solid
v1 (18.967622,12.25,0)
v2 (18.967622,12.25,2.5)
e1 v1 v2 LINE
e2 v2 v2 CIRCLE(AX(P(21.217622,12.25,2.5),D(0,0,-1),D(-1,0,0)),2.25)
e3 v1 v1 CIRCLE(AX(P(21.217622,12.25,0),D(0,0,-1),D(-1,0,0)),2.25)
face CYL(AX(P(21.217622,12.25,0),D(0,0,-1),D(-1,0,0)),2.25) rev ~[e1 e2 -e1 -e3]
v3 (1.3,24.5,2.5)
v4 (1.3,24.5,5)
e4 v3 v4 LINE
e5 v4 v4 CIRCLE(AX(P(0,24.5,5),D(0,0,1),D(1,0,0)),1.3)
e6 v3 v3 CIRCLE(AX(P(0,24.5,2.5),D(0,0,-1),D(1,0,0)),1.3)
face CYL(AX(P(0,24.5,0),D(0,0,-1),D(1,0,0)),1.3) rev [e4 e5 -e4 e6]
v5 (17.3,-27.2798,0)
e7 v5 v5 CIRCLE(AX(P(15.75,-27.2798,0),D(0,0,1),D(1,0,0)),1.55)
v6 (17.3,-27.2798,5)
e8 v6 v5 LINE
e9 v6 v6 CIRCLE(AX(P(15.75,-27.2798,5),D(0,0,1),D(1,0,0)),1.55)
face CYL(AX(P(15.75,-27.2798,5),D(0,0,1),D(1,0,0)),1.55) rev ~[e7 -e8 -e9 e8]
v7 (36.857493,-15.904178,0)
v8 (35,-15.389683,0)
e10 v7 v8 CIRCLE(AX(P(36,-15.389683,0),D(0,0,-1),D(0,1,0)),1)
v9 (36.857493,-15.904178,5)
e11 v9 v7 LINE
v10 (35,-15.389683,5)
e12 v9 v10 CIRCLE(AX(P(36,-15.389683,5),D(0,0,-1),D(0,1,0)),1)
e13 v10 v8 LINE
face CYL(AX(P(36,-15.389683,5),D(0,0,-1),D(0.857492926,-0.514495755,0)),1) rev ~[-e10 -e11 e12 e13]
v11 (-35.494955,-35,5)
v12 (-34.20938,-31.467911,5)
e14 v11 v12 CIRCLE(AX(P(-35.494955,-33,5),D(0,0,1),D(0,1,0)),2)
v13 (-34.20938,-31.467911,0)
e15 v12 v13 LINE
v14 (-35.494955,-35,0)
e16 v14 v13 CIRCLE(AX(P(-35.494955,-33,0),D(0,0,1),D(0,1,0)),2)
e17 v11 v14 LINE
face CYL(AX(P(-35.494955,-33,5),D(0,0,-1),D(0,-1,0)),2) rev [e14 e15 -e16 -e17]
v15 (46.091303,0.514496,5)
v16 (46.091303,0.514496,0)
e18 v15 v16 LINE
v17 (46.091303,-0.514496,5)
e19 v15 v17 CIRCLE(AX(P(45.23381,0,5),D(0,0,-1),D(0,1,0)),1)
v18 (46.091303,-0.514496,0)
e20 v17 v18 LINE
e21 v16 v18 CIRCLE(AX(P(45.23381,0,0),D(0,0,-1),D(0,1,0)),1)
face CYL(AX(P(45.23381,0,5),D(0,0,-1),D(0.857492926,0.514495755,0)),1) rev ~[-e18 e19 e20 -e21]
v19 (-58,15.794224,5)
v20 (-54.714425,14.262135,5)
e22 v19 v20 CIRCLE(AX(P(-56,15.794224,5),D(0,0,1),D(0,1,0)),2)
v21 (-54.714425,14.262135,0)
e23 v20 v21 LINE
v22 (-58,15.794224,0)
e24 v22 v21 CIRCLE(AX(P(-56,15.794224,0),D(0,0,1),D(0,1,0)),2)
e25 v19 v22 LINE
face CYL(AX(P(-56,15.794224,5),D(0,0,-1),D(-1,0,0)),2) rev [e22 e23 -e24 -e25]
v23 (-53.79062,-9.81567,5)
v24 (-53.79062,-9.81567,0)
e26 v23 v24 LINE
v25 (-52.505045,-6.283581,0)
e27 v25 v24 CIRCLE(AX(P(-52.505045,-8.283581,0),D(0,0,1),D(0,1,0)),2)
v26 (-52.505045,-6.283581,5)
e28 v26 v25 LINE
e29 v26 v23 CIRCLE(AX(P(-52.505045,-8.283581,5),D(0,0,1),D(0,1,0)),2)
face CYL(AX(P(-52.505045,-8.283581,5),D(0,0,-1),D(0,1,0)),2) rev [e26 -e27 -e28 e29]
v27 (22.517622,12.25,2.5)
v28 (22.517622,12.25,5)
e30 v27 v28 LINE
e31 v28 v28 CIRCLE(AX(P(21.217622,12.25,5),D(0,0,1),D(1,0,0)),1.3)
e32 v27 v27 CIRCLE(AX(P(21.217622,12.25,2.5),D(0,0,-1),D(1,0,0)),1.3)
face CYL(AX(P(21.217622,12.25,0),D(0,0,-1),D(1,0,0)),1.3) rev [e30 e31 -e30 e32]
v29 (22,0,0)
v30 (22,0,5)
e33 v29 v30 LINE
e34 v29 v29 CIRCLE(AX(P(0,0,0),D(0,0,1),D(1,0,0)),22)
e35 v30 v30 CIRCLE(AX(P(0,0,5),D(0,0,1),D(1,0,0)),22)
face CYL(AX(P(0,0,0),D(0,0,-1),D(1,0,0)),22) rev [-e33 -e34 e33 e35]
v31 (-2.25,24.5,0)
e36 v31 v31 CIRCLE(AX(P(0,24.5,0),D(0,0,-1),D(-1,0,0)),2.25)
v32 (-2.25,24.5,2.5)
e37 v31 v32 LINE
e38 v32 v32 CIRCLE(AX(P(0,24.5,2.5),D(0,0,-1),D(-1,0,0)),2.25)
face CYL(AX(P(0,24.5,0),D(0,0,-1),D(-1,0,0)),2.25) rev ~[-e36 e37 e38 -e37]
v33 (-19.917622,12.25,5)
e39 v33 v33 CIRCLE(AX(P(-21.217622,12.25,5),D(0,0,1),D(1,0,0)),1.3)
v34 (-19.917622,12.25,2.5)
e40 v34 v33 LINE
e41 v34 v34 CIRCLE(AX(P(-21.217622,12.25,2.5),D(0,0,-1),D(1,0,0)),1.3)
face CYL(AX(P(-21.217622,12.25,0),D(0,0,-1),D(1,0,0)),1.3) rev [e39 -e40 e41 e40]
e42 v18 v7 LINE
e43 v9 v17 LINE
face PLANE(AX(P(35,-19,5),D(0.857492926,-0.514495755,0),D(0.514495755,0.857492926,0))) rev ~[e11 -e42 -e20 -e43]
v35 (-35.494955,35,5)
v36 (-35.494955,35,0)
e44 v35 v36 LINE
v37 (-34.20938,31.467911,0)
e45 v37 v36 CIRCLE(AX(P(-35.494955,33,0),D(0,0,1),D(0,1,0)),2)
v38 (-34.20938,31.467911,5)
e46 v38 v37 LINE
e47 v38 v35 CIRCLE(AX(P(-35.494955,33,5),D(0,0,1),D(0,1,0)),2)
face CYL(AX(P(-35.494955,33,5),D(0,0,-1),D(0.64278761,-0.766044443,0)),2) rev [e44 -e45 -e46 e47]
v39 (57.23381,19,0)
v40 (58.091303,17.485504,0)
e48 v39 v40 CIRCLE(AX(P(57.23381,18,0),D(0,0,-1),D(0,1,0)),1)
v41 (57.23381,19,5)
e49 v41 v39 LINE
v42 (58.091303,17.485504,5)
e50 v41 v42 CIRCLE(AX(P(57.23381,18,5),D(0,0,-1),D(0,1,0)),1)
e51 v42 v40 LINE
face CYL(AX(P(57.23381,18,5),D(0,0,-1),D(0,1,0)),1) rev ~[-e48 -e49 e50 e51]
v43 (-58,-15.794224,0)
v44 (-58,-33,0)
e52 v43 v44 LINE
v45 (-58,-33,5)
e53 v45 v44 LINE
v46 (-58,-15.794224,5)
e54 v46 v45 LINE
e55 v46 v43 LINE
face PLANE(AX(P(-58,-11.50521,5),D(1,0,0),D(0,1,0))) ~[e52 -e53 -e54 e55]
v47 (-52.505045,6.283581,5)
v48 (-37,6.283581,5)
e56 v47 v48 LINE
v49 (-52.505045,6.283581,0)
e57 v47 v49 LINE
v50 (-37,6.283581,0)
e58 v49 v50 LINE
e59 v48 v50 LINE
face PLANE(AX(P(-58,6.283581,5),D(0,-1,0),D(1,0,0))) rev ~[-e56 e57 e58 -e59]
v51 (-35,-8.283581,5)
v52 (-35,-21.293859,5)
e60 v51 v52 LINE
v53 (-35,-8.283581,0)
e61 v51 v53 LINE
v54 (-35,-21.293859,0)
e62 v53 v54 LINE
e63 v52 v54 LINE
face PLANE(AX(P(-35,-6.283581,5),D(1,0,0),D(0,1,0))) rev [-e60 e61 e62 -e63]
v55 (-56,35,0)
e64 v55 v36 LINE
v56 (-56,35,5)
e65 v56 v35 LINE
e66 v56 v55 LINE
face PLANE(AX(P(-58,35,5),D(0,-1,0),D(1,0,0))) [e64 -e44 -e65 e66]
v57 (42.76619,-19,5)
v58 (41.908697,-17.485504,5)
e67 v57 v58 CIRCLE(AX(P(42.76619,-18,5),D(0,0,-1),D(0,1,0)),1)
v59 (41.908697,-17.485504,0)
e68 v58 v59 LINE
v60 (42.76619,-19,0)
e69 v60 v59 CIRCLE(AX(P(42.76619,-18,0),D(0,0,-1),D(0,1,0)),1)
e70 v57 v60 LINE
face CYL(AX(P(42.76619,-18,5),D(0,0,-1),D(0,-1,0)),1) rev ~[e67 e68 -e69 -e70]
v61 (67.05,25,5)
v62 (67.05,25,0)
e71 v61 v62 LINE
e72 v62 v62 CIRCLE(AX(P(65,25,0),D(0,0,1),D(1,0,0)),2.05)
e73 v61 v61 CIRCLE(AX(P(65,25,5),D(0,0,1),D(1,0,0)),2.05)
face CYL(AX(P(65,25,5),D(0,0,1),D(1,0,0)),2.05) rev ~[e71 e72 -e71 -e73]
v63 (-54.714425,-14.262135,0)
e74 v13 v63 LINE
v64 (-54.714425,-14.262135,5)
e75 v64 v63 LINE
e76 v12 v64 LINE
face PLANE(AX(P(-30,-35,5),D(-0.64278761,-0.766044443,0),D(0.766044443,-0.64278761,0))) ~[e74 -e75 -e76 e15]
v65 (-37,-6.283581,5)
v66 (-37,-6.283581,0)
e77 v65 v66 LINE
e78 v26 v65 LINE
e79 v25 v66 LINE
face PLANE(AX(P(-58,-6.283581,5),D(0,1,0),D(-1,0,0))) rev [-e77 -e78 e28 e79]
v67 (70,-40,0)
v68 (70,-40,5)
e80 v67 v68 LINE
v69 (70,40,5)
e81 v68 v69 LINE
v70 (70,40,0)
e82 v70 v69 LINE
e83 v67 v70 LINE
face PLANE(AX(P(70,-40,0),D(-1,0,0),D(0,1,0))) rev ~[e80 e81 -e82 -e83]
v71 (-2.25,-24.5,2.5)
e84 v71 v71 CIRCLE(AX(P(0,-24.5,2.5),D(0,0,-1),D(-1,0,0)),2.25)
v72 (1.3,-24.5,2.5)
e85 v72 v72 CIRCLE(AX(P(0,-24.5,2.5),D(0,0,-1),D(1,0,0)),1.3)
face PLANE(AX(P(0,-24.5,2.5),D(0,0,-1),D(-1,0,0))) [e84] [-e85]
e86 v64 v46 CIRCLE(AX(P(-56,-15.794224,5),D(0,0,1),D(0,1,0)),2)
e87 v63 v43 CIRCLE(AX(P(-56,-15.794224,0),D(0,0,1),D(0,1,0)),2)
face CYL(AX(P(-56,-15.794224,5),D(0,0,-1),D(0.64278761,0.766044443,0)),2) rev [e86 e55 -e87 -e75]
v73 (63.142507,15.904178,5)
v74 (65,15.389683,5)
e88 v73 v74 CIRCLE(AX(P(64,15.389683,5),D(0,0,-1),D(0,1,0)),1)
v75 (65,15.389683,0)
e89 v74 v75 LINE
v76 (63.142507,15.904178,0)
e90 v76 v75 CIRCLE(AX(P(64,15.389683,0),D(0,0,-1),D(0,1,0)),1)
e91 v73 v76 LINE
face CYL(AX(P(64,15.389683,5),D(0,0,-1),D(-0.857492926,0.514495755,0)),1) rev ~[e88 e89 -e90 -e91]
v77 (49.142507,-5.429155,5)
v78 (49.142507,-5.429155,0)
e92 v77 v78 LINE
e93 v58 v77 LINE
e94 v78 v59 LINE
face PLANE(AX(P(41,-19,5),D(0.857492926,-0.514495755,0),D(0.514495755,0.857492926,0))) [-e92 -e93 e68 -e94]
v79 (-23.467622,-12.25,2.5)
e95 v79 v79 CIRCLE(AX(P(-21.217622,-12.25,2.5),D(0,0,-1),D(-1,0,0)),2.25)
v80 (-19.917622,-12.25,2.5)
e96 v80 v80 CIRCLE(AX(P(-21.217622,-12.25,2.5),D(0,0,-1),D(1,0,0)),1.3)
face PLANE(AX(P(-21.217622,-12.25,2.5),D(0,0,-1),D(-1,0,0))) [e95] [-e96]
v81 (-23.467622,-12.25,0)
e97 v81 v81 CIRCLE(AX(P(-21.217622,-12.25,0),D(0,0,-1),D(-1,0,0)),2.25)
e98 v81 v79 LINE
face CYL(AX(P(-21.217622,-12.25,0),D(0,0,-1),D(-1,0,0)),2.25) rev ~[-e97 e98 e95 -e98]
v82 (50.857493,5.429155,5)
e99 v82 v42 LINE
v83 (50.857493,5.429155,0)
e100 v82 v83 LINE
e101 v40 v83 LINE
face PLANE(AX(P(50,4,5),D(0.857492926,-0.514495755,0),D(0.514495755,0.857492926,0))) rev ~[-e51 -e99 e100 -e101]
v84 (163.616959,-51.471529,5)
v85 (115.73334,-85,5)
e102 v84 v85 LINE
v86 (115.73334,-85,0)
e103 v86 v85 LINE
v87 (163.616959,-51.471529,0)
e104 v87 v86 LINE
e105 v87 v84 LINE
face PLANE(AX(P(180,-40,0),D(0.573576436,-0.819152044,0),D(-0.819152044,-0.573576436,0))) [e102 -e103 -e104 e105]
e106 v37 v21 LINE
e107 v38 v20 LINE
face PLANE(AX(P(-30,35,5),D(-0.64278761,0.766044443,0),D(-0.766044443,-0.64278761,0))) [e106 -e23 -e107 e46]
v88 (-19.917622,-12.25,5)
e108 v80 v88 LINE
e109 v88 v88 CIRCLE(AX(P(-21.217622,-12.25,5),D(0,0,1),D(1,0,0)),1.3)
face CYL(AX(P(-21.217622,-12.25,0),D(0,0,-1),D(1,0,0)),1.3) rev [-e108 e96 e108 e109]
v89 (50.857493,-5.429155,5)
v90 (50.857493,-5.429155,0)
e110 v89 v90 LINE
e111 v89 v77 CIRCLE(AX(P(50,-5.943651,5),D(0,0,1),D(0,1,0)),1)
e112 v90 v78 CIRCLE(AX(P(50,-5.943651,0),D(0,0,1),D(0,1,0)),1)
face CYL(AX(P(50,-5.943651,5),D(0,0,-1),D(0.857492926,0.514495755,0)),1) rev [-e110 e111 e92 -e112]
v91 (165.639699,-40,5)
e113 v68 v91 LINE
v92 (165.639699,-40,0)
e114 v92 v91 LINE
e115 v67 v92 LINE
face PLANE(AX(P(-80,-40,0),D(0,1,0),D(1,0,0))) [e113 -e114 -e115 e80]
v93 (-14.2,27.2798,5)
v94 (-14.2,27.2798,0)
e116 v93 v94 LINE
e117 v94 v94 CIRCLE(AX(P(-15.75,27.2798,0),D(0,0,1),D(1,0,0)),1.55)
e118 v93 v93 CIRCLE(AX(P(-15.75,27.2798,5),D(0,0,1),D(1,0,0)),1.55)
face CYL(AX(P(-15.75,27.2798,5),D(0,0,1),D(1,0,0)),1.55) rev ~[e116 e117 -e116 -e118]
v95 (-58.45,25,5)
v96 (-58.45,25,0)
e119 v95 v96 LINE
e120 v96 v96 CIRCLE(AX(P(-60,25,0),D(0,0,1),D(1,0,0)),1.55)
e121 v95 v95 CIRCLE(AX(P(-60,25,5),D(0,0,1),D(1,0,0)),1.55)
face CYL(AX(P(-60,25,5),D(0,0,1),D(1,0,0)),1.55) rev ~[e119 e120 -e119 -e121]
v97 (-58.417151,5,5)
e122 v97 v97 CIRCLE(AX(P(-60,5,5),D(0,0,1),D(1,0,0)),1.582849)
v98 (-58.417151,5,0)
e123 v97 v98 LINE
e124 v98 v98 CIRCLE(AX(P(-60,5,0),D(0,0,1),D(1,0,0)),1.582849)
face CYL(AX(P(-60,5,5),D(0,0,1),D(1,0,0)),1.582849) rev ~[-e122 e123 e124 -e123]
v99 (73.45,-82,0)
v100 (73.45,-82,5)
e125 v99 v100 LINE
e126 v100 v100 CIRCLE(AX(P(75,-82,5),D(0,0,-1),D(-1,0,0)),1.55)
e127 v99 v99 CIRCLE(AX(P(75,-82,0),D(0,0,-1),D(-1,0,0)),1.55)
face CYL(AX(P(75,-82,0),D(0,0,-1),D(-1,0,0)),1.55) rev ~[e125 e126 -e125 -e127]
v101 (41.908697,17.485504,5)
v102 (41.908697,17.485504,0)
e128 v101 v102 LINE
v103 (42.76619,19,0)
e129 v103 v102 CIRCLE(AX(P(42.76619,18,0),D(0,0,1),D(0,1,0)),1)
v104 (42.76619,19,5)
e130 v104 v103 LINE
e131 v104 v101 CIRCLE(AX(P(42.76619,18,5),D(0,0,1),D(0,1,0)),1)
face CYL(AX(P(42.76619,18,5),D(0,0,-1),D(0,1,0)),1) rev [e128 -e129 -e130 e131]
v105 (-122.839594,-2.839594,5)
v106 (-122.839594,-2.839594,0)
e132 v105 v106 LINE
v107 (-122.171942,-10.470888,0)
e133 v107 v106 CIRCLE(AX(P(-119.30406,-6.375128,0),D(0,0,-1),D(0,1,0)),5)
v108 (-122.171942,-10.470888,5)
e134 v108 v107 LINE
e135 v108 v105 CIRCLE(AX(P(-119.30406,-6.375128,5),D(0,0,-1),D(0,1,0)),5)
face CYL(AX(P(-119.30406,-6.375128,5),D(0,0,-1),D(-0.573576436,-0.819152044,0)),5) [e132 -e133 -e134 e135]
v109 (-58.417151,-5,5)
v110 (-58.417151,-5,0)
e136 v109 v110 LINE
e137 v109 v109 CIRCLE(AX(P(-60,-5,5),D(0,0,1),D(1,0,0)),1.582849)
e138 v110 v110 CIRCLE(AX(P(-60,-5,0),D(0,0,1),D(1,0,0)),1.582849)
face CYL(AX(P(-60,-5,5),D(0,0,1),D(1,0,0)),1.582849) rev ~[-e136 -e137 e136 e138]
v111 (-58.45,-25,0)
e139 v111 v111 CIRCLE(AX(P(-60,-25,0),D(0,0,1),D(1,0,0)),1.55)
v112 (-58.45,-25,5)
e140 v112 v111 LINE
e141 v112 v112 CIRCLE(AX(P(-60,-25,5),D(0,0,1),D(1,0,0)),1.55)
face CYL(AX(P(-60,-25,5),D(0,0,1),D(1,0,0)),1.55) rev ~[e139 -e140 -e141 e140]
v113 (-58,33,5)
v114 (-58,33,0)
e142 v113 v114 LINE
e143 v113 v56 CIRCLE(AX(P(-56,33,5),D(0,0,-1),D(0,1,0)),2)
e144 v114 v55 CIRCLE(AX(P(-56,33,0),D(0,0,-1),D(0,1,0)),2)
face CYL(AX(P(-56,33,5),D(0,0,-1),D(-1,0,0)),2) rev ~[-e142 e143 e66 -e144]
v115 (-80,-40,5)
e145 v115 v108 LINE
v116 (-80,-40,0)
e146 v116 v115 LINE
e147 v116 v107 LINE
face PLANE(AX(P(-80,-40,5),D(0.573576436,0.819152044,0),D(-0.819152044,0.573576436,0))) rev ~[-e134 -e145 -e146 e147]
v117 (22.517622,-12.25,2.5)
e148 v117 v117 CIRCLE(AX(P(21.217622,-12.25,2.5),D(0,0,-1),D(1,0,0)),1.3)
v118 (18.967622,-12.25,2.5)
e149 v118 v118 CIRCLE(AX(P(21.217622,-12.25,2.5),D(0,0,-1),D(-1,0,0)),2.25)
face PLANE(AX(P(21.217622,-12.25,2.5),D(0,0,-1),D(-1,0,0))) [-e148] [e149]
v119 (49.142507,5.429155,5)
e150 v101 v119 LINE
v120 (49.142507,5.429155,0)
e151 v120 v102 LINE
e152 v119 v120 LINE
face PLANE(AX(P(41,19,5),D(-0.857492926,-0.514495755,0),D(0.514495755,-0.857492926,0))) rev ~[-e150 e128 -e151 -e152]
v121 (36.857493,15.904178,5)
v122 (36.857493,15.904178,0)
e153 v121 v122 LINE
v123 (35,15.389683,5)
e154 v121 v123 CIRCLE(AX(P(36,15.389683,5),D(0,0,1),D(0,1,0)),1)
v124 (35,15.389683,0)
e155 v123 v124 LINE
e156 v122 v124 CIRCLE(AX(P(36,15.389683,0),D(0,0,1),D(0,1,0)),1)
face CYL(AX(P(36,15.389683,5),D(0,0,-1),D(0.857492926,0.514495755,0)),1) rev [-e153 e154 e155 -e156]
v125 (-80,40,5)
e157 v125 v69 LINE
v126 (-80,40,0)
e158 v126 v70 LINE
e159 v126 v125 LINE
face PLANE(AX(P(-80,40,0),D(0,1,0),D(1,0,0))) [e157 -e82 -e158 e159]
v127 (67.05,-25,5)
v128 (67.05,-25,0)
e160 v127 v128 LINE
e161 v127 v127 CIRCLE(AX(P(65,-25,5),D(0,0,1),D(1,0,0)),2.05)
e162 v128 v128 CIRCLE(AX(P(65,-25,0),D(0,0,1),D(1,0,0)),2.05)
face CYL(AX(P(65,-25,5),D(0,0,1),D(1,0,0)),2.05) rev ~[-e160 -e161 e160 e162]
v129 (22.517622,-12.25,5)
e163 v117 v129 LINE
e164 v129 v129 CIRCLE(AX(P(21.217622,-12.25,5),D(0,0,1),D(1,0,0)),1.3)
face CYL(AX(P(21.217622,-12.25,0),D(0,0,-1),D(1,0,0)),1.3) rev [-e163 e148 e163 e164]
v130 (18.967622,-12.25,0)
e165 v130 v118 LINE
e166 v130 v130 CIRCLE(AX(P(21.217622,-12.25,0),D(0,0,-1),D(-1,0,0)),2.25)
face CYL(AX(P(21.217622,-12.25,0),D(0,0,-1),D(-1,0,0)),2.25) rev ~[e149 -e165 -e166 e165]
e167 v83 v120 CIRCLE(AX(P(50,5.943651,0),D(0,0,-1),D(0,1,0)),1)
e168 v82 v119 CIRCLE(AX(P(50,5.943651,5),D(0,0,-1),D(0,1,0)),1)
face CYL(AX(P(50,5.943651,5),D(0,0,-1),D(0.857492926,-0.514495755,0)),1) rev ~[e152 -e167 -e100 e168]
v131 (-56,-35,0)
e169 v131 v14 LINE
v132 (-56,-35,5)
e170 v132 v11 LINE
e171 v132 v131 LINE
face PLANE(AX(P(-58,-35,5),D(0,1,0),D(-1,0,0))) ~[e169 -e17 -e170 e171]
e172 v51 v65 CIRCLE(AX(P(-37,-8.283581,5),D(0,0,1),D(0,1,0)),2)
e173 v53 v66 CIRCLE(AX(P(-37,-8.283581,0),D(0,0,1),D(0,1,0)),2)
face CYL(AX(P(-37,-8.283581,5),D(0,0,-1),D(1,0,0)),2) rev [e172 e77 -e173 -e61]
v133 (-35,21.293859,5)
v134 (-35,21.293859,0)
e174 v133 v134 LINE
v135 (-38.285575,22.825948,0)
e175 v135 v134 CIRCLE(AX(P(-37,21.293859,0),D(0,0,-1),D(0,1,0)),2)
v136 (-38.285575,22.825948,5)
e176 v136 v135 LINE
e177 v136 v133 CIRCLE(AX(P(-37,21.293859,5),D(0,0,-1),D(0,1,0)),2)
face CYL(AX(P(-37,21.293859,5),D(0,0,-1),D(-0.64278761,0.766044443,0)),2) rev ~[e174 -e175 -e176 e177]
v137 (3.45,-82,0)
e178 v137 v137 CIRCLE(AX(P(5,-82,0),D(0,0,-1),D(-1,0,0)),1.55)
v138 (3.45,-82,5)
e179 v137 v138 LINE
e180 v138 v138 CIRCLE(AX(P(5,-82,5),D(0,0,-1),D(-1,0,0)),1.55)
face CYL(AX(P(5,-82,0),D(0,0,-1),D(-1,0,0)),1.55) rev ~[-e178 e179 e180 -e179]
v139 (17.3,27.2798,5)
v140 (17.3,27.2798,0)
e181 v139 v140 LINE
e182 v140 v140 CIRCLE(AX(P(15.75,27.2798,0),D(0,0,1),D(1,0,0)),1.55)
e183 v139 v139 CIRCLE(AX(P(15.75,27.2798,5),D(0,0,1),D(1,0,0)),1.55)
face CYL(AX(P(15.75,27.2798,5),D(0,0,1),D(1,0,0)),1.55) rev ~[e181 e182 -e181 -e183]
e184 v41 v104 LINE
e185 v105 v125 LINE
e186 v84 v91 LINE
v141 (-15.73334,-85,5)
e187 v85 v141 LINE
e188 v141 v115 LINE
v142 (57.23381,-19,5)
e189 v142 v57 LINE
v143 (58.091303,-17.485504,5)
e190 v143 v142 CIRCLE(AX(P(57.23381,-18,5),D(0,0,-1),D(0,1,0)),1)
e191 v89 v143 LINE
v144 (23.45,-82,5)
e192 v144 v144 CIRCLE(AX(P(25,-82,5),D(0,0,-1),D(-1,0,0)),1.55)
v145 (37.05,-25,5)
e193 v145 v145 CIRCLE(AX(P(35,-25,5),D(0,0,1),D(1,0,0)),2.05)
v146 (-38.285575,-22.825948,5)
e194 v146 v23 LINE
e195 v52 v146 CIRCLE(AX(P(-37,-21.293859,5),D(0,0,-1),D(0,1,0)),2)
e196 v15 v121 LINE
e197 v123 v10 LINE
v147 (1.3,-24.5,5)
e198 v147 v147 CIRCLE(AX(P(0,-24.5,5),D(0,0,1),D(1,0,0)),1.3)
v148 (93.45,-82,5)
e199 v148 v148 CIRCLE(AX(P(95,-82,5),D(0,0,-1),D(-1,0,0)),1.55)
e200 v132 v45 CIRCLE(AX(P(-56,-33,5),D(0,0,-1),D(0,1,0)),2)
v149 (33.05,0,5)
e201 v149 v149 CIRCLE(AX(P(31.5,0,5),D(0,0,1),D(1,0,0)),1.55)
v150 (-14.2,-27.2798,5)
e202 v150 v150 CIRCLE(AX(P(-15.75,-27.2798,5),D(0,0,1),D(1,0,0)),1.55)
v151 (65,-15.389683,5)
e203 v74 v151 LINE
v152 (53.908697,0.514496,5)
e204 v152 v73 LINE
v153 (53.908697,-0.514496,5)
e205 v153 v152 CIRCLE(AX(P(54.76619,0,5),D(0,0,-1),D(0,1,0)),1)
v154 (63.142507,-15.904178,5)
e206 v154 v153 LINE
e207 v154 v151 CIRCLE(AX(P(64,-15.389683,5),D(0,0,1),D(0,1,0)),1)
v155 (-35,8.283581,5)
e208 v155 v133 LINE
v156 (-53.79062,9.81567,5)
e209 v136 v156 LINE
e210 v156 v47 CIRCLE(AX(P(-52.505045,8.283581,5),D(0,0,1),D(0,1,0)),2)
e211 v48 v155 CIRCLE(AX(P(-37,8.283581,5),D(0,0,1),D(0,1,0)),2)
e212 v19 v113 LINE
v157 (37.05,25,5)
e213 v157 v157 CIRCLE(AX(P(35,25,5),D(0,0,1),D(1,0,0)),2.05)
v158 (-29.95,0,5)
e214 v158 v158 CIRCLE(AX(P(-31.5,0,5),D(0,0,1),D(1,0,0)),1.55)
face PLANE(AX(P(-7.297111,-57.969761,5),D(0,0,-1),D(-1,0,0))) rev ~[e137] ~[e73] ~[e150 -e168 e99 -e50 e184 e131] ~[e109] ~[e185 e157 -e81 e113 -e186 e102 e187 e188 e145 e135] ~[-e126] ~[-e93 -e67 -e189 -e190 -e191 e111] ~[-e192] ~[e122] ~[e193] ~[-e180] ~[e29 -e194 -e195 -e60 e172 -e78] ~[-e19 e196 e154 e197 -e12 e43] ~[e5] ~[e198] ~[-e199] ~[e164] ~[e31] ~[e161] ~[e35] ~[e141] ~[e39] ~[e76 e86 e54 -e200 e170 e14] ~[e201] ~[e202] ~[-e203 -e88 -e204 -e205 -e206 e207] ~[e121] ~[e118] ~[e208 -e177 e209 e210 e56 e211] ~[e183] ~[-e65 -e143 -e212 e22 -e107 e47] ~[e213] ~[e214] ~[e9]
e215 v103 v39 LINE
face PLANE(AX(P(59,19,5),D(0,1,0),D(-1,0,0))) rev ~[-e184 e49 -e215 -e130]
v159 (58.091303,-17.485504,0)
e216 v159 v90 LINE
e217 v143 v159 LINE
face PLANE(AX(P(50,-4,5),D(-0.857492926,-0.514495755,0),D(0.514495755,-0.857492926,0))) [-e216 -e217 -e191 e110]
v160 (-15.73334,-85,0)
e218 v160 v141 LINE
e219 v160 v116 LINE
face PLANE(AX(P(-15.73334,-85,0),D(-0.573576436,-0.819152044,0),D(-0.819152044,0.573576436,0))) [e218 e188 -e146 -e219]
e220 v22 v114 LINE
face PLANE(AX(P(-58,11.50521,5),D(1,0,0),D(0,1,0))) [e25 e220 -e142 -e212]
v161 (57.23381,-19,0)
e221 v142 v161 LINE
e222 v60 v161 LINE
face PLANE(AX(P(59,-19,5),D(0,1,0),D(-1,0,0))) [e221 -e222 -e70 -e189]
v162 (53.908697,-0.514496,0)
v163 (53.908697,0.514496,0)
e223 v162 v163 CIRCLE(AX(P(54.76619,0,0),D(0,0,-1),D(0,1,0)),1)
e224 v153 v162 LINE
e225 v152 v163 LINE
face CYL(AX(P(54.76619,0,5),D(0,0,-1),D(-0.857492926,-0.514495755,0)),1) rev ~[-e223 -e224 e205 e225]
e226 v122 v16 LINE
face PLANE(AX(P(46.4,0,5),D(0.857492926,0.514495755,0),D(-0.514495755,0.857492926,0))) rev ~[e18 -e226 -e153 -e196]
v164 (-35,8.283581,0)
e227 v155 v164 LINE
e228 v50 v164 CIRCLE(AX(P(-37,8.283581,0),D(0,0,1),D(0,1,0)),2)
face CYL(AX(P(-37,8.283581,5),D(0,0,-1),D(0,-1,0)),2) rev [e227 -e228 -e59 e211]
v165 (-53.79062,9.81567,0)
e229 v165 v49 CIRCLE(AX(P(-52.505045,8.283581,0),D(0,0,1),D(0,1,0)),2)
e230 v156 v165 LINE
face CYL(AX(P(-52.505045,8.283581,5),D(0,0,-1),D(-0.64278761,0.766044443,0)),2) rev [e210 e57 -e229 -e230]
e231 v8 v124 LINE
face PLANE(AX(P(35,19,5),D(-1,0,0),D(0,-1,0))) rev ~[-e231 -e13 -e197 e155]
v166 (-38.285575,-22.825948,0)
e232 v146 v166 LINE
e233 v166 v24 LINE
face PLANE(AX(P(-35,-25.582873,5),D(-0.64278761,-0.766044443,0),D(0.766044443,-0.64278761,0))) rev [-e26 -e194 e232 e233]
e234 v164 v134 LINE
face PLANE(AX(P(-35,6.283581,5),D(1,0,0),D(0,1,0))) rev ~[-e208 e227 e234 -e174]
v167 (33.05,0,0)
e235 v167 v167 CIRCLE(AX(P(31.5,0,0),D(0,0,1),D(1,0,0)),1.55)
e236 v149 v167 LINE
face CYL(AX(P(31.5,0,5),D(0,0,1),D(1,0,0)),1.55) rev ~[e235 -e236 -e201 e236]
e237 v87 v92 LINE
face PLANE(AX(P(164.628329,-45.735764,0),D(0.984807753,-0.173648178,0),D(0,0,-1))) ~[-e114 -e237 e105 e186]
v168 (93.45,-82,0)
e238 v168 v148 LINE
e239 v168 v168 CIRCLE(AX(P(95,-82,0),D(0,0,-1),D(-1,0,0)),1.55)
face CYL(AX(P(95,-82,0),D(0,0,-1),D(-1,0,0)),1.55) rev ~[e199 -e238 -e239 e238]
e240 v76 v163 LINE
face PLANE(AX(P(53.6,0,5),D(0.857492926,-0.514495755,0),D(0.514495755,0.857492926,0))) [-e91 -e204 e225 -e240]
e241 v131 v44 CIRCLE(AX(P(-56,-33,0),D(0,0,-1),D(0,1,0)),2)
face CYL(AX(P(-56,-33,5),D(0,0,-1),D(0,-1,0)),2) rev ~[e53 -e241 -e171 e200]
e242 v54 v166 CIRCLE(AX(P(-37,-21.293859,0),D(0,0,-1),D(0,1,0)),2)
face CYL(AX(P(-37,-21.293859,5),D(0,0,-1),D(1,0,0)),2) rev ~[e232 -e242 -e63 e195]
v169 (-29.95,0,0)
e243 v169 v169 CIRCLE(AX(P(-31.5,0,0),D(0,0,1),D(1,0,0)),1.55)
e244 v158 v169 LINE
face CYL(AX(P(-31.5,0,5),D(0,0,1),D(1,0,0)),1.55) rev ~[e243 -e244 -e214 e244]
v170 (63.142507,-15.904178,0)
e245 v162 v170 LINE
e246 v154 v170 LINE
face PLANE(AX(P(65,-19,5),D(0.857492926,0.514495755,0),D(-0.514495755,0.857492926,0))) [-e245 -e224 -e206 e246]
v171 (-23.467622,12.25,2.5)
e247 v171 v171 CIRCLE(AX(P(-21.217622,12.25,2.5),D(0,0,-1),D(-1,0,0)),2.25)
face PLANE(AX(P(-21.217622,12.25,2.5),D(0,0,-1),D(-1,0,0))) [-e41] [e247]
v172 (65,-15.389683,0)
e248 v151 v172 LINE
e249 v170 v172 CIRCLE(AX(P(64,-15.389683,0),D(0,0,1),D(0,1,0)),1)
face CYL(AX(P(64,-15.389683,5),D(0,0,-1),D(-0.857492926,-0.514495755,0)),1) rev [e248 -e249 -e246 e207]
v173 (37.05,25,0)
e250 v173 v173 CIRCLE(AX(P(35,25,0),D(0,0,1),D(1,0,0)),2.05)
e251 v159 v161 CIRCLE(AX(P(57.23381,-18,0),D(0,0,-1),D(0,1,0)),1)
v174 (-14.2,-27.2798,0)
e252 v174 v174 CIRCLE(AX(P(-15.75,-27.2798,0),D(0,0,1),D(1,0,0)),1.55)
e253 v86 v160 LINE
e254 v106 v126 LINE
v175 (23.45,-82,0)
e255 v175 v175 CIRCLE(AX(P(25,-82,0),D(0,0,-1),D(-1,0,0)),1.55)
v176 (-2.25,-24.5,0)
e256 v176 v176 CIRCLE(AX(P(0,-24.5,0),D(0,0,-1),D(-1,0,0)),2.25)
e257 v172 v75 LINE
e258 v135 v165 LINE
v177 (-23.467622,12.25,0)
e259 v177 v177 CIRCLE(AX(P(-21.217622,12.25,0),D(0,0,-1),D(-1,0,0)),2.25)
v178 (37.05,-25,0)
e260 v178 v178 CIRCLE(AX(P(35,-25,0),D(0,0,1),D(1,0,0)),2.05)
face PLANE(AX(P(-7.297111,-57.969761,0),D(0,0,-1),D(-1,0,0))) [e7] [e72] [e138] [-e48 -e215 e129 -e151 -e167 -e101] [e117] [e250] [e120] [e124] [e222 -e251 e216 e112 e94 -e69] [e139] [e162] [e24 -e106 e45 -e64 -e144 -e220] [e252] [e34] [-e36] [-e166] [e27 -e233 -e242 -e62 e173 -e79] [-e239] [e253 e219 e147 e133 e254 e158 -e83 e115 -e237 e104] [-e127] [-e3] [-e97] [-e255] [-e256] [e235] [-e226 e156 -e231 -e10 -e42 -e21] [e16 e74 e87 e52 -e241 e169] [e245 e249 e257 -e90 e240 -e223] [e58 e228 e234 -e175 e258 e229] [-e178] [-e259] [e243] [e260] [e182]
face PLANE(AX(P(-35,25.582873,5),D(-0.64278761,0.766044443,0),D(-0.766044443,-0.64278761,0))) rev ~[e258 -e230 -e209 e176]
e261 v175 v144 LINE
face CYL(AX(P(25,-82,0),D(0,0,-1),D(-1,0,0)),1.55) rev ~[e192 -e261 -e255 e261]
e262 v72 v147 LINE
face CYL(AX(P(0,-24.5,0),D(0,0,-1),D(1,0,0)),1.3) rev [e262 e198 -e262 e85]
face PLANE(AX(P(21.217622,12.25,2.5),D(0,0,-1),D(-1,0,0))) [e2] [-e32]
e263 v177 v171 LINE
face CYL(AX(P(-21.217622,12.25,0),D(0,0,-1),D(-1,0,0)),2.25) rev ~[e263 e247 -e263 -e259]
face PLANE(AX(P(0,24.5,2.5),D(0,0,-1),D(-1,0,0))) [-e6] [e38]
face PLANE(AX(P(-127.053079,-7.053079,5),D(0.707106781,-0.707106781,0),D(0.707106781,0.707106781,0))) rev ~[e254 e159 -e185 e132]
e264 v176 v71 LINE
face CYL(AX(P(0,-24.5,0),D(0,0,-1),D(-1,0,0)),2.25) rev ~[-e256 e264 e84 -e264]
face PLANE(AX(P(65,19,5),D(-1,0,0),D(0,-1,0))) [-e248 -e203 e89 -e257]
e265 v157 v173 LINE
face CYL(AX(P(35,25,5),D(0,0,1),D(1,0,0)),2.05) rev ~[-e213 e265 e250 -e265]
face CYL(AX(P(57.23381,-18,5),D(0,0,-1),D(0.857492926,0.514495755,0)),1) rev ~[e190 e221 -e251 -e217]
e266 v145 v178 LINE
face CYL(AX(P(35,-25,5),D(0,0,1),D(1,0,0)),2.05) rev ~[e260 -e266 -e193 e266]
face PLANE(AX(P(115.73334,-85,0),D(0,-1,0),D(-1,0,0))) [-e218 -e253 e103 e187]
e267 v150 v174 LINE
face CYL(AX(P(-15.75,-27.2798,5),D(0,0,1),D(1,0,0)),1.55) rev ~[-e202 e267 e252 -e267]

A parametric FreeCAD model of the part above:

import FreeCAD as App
import Part
import Sketcher
Q = App.Units.Quantity


def edges_at(feature, points):
    """Names of the edges that pass closest to the given points."""
    edges = feature.Shape.Edges
    near = lambda p: min(range(len(edges)), key=lambda i: edges[i].distToShape(Part.Vertex(*p))[0])
    return sorted({f"Edge{near(p) + 1}" for p in points})

doc = App.newDocument("Part")
body = doc.addObject("PartDesign::Body", "Body")

# Sketch on XY plane
sketch1 = doc.addObject("Sketcher::SketchObject", "Sketch")
body.addObject(sketch1)
sketch1.AttachmentSupport = (doc.XY_Plane, [""])
sketch1.MapMode = "FlatFace"
sketch1.addGeometry(Part.LineSegment(App.Vector(-80, 40, 0), App.Vector(-80, -40, 0)), False)
sketch1.addGeometry(Part.LineSegment(App.Vector(-80, -40, 0), App.Vector(70, -40, 0)), False)
sketch1.addGeometry(Part.LineSegment(App.Vector(70, -40, 0), App.Vector(70, 40, 0)), False)
sketch1.addGeometry(Part.LineSegment(App.Vector(70, 40, 0), App.Vector(-80, 40, 0)), False)
sketch1.addGeometry(Part.Circle(App.Vector(-21.2, -12.2, 0), App.Vector(0, 0, 1), 1.3), False)
sketch1.addGeometry(Part.Circle(App.Vector(0, -24.5, 0), App.Vector(0, 0, 1), 1.3), False)
sketch1.addGeometry(Part.Circle(App.Vector(21.2, -12.2, 0), App.Vector(0, 0, 1), 1.3), False)
sketch1.addGeometry(Part.Circle(App.Vector(-21.2, 12.2, 0), App.Vector(0, 0, 1), 1.3), False)
sketch1.addGeometry(Part.Circle(App.Vector(0, 0, 0), App.Vector(0, 0, 1), 22), False)
sketch1.addGeometry(Part.Circle(App.Vector(21.2, 12.2, 0), App.Vector(0, 0, 1), 1.3), False)
sketch1.addGeometry(Part.Circle(App.Vector(0, 24.5, 0), App.Vector(0, 0, 1), 1.3), False)
sketch1.addConstraint(Sketcher.Constraint("Coincident", 0, 2, 1, 1))
sketch1.addConstraint(Sketcher.Constraint("Coincident", 1, 2, 2, 1))
sketch1.addConstraint(Sketcher.Constraint("Coincident", 2, 2, 3, 1))
sketch1.addConstraint(Sketcher.Constraint("Coincident", 3, 2, 0, 1))
sketch1.addConstraint(Sketcher.Constraint("Vertical", 0))
sketch1.addConstraint(Sketcher.Constraint("Horizontal", 1))
sketch1.addConstraint(Sketcher.Constraint("Vertical", 2))
sketch1.addConstraint(Sketcher.Constraint("Horizontal", 3))
sketch1.addConstraint(Sketcher.Constraint("Coincident", 8, 3, -1, 1))
sketch1.addConstraint(Sketcher.Constraint("Equal", 4, 5))
sketch1.addConstraint(Sketcher.Constraint("Equal", 5, 6))
sketch1.addConstraint(Sketcher.Constraint("Equal", 6, 7))
sketch1.addConstraint(Sketcher.Constraint("Equal", 7, 9))
sketch1.addConstraint(Sketcher.Constraint("Equal", 9, 10))
sketch1.addConstraint(Sketcher.Constraint("Symmetric", 6, 3, 7, 3, -1, 1))
sketch1.addConstraint(Sketcher.Constraint("Symmetric", 4, 3, 9, 3, -1, 1))
sketch1.addConstraint(Sketcher.Constraint("Symmetric", 5, 3, 10, 3, -1, 1))
sketch1.addConstraint(Sketcher.Constraint("Symmetric", 4, 3, 6, 3, -2))
sketch1.addConstraint(Sketcher.Constraint("PointOnObject", 5, 3, -2))
sketch1.addConstraint(Sketcher.Constraint("Diameter", 8, Q("44 mm")))
sketch1.addConstraint(Sketcher.Constraint("Diameter", 4, Q("2.6 mm")))
sketch1.addConstraint(Sketcher.Constraint("DistanceX", 1, 1, 1, 2, Q("150 mm")))
sketch1.addConstraint(Sketcher.Constraint("DistanceY", 0, 2, 0, 1, Q("80 mm")))
sketch1.addConstraint(Sketcher.Constraint("DistanceX", 0, 2, -1, 1, Q("80 mm")))
sketch1.addConstraint(Sketcher.Constraint("DistanceY", 0, 2, -1, 1, Q("40 mm")))
sketch1.addConstraint(Sketcher.Constraint("DistanceY", 5, 3, -1, 1, Q("24.5 mm")))
sketch1.addConstraint(Sketcher.Constraint("DistanceY", 4, 3, 7, 3, Q("24.5 mm")))
sketch1.addConstraint(Sketcher.Constraint("DistanceX", 4, 3, -1, 1, Q("21.217622 mm")))
pad1 = doc.addObject("PartDesign::Pad", "Pad")
body.addObject(pad1)
pad1.Profile = sketch1
pad1.Length = 5

# Sketch on XY plane
sketch2 = doc.addObject("Sketcher::SketchObject", "Sketch001")
body.addObject(sketch2)
sketch2.AttachmentSupport = (doc.XY_Plane, [""])
sketch2.MapMode = "FlatFace"
sketch2.AttachmentOffset = App.Placement(App.Vector(0, 0, 5), App.Rotation())
sketch2.addGeometry(Part.Circle(App.Vector(-60, -25, 0), App.Vector(0, 0, 1), 1.6), False)
sketch2.addGeometry(Part.Circle(App.Vector(-60, -5, 0), App.Vector(0, 0, 1), 1.6), False)
sketch2.addGeometry(Part.Circle(App.Vector(-60, 25, 0), App.Vector(0, 0, 1), 1.6), False)
sketch2.addGeometry(Part.Circle(App.Vector(-60, 5, 0), App.Vector(0, 0, 1), 1.6), False)
sketch2.addConstraint(Sketcher.Constraint("Equal", 0, 2))
sketch2.addConstraint(Sketcher.Constraint("Equal", 1, 3))
sketch2.addConstraint(Sketcher.Constraint("Symmetric", 0, 3, 2, 3, -1))
sketch2.addConstraint(Sketcher.Constraint("Symmetric", 1, 3, 3, 3, -1))
sketch2.addConstraint(Sketcher.Constraint("Vertical", 0, 3, 1, 3))
sketch2.addConstraint(Sketcher.Constraint("Diameter", 0, Q("3.1 mm")))
sketch2.addConstraint(Sketcher.Constraint("DistanceX", 0, 3, -1, 1, Q("60 mm")))
sketch2.addConstraint(Sketcher.Constraint("DistanceY", 0, 3, -1, 1, Q("25 mm")))
sketch2.addConstraint(Sketcher.Constraint("DistanceY", 1, 3, -1, 1, Q("5 mm")))
sketch2.addConstraint(Sketcher.Constraint("Diameter", 1, Q("3.165699 mm")))
pocket1 = doc.addObject("PartDesign::Pocket", "Pocket")
body.addObject(pocket1)
pocket1.Profile = sketch2
pocket1.Length = 12.5

# Sketch on XY plane
sketch3 = doc.addObject("Sketcher::SketchObject", "Sketch002")
body.addObject(sketch3)
sketch3.AttachmentSupport = (doc.XY_Plane, [""])
sketch3.MapMode = "FlatFace"
sketch3.AttachmentOffset = App.Placement(App.Vector(0, 0, 5), App.Rotation())
sketch3.addGeometry(Part.LineSegment(App.Vector(-30, 35, 0), App.Vector(-58, 35, 0)), False)
sketch3.addGeometry(Part.LineSegment(App.Vector(-58, 35, 0), App.Vector(-58, 12, 0)), False)
sketch3.addGeometry(Part.LineSegment(App.Vector(-58, 12, 0), App.Vector(-30, 35, 0)), False)
sketch3.addGeometry(Part.LineSegment(App.Vector(-35, 26, 0), App.Vector(-58, 6, 0)), False)
sketch3.addGeometry(Part.LineSegment(App.Vector(-58, 6, 0), App.Vector(-35, 6, 0)), False)
sketch3.addGeometry(Part.LineSegment(App.Vector(-35, 6, 0), App.Vector(-35, 26, 0)), False)
sketch3.addConstraint(Sketcher.Constraint("Coincident", 0, 2, 1, 1))
sketch3.addConstraint(Sketcher.Constraint("Coincident", 1, 2, 2, 1))
sketch3.addConstraint(Sketcher.Constraint("Coincident", 2, 2, 0, 1))
sketch3.addConstraint(Sketcher.Constraint("Coincident", 3, 2, 4, 1))
sketch3.addConstraint(Sketcher.Constraint("Coincident", 4, 2, 5, 1))
sketch3.addConstraint(Sketcher.Constraint("Coincident", 5, 2, 3, 1))
sketch3.addConstraint(Sketcher.Constraint("Horizontal", 0))
sketch3.addConstraint(Sketcher.Constraint("Vertical", 1))
sketch3.addConstraint(Sketcher.Constraint("Horizontal", 4))
sketch3.addConstraint(Sketcher.Constraint("Vertical", 5))
sketch3.addConstraint(Sketcher.Constraint("Parallel", 2, 3))
sketch3.addConstraint(Sketcher.Constraint("Vertical", 1, 2, 3, 2))
sketch3.addConstraint(Sketcher.Constraint("DistanceX", 0, 2, 0, 1, Q("28 mm")))
sketch3.addConstraint(Sketcher.Constraint("DistanceX", 4, 1, 4, 2, Q("23 mm")))
sketch3.addConstraint(Sketcher.Constraint("Angle", 2, Q("40 deg")))
sketch3.addConstraint(Sketcher.Constraint("DistanceX", 0, 2, -1, 1, Q("58 mm")))
sketch3.addConstraint(Sketcher.Constraint("DistanceY", -1, 1, 0, 2, Q("35 mm")))
sketch3.addConstraint(Sketcher.Constraint("DistanceY", -1, 1, 3, 2, Q("6.283581 mm")))
pocket2 = doc.addObject("PartDesign::Pocket", "Pocket001")
body.addObject(pocket2)
pocket2.Profile = sketch3
pocket2.Length = 8
doc.recompute()

fillet = doc.addObject("PartDesign::Fillet", "Fillet")
body.addObject(fillet)
fillet.Base = (pocket2, edges_at(pocket2, [
    (-35, 6.284, 2.5),
    (-58, 6.284, 2.5),
    (-35, 25.583, 2.5),
    (-30, 35, 2.5),
    (-58, 11.505, 2.5),
    (-58, 35, 2.5),
]))
fillet.Radius = 2
doc.recompute()

mirrored = doc.addObject("PartDesign::Mirrored", "Mirrored")
body.addObject(mirrored)
mirrored.Originals = [pocket2]
mirrored.MirrorPlane = (doc.XZ_Plane, [""])
body.Tip = mirrored
doc.recompute()

fillet2 = doc.addObject("PartDesign::Fillet", "Fillet001")
body.addObject(fillet2)
fillet2.Base = (mirrored, edges_at(mirrored, [
    (-35, -6.284, 2.5),
    (-58, -6.284, 2.5),
    (-35, -25.583, 2.5),
    (-30, -35, 2.5),
    (-58, -11.505, 2.5),
    (-58, -35, 2.5),
]))
fillet2.Radius = 2

# Sketch on XY plane
sketch4 = doc.addObject("Sketcher::SketchObject", "Sketch003")
body.addObject(sketch4)
sketch4.AttachmentSupport = (doc.XY_Plane, [""])
sketch4.MapMode = "FlatFace"
sketch4.AttachmentOffset = App.Placement(App.Vector(0, 0, 5), App.Rotation())
sketch4.addGeometry(Part.LineSegment(App.Vector(-127, -7, 0), App.Vector(-80, -40, 0)), False)
sketch4.addGeometry(Part.LineSegment(App.Vector(-80, -40, 0), App.Vector(-80, 40, 0)), False)
sketch4.addGeometry(Part.LineSegment(App.Vector(-80, 40, 0), App.Vector(-127, -7, 0)), False)
sketch4.addConstraint(Sketcher.Constraint("Coincident", 0, 2, 1, 1))
sketch4.addConstraint(Sketcher.Constraint("Coincident", 1, 2, 2, 1))
sketch4.addConstraint(Sketcher.Constraint("Coincident", 2, 2, 0, 1))
sketch4.addConstraint(Sketcher.Constraint("Vertical", 1))
sketch4.addConstraint(Sketcher.Constraint("DistanceY", 1, 1, 1, 2, Q("80 mm")))
sketch4.addConstraint(Sketcher.Constraint("Angle", 0, Q("-35 deg")))
sketch4.addConstraint(Sketcher.Constraint("Angle", 2, Q("-135 deg")))
sketch4.addConstraint(Sketcher.Constraint("DistanceX", 0, 2, -1, 1, Q("80 mm")))
sketch4.addConstraint(Sketcher.Constraint("DistanceY", 0, 2, -1, 1, Q("40 mm")))
pad2 = doc.addObject("PartDesign::Pad", "Pad001")
body.addObject(pad2)
pad2.Profile = sketch4
pad2.Length = 5
pad2.Reversed = True
doc.recompute()

fillet3 = doc.addObject("PartDesign::Fillet", "Fillet002")
body.addObject(fillet3)
fillet3.Base = (pad2, edges_at(pad2, [(-127.053, -7.053, 2.5)]))
fillet3.Radius = 5

# Sketch on XY plane
sketch5 = doc.addObject("Sketcher::SketchObject", "Sketch004")
body.addObject(sketch5)
sketch5.AttachmentSupport = (doc.XY_Plane, [""])
sketch5.MapMode = "FlatFace"
sketch5.AttachmentOffset = App.Placement(App.Vector(0, 0, 5), App.Rotation())
sketch5.addGeometry(Part.Circle(App.Vector(-15.8, 27.3, 0), App.Vector(0, 0, 1), 1.6), False)
sketch5.addGeometry(Part.Circle(App.Vector(15.8, 27.3, 0), App.Vector(0, 0, 1), 1.6), False)
sketch5.addGeometry(Part.Circle(App.Vector(31.5, 0, 0), App.Vector(0, 0, 1), 1.6), False)
sketch5.addGeometry(Part.Circle(App.Vector(15.8, -27.3, 0), App.Vector(0, 0, 1), 1.6), False)
sketch5.addGeometry(Part.Circle(App.Vector(-15.8, -27.3, 0), App.Vector(0, 0, 1), 1.6), False)
sketch5.addGeometry(Part.Circle(App.Vector(-31.5, 0, 0), App.Vector(0, 0, 1), 1.6), False)
sketch5.addConstraint(Sketcher.Constraint("Equal", 0, 1))
sketch5.addConstraint(Sketcher.Constraint("Equal", 1, 2))
sketch5.addConstraint(Sketcher.Constraint("Equal", 2, 3))
sketch5.addConstraint(Sketcher.Constraint("Equal", 3, 4))
sketch5.addConstraint(Sketcher.Constraint("Equal", 4, 5))
sketch5.addConstraint(Sketcher.Constraint("Symmetric", 0, 3, 3, 3, -1, 1))
sketch5.addConstraint(Sketcher.Constraint("Symmetric", 1, 3, 4, 3, -1, 1))
sketch5.addConstraint(Sketcher.Constraint("Symmetric", 2, 3, 5, 3, -1, 1))
sketch5.addConstraint(Sketcher.Constraint("Symmetric", 0, 3, 1, 3, -2))
sketch5.addConstraint(Sketcher.Constraint("PointOnObject", 2, 3, -1))
sketch5.addConstraint(Sketcher.Constraint("Diameter", 0, Q("3.1 mm")))
sketch5.addConstraint(Sketcher.Constraint("DistanceX", 5, 3, 2, 3, Q("63 mm")))
sketch5.addConstraint(Sketcher.Constraint("DistanceX", 0, 3, 1, 3, Q("31.5 mm")))
sketch5.addConstraint(Sketcher.Constraint("DistanceY", -1, 1, 0, 3, Q("27.2798 mm")))
pocket3 = doc.addObject("PartDesign::Pocket", "Pocket002")
body.addObject(pocket3)
pocket3.Profile = sketch5
pocket3.Length = 25

# Sketch on XY plane
sketch6 = doc.addObject("Sketcher::SketchObject", "Sketch005")
body.addObject(sketch6)
sketch6.AttachmentSupport = (doc.XY_Plane, [""])
sketch6.MapMode = "FlatFace"
sketch6.AttachmentOffset = App.Placement(App.Vector(0, 0, 5), App.Rotation())
sketch6.addGeometry(Part.Circle(App.Vector(35, 25, 0), App.Vector(0, 0, 1), 2), False)
sketch6.addGeometry(Part.Circle(App.Vector(65, 25, 0), App.Vector(0, 0, 1), 2), False)
sketch6.addGeometry(Part.Circle(App.Vector(65, -25, 0), App.Vector(0, 0, 1), 2), False)
sketch6.addGeometry(Part.Circle(App.Vector(35, -25, 0), App.Vector(0, 0, 1), 2), False)
sketch6.addConstraint(Sketcher.Constraint("Equal", 0, 1))
sketch6.addConstraint(Sketcher.Constraint("Equal", 1, 2))
sketch6.addConstraint(Sketcher.Constraint("Equal", 2, 3))
sketch6.addConstraint(Sketcher.Constraint("Symmetric", 1, 3, 2, 3, -1))
sketch6.addConstraint(Sketcher.Constraint("Symmetric", 0, 3, 3, 3, -1))
sketch6.addConstraint(Sketcher.Constraint("Horizontal", 0, 3, 1, 3))
sketch6.addConstraint(Sketcher.Constraint("Diameter", 0, Q("4.1 mm")))
sketch6.addConstraint(Sketcher.Constraint("DistanceX", -1, 1, 0, 3, Q("35 mm")))
sketch6.addConstraint(Sketcher.Constraint("DistanceY", -1, 1, 0, 3, Q("25 mm")))
sketch6.addConstraint(Sketcher.Constraint("DistanceX", -1, 1, 1, 3, Q("65 mm")))
pocket4 = doc.addObject("PartDesign::Pocket", "Pocket003")
body.addObject(pocket4)
pocket4.Profile = sketch6
pocket4.Length = 10

# Sketch on XY plane
sketch7 = doc.addObject("Sketcher::SketchObject", "Sketch006")
body.addObject(sketch7)
sketch7.AttachmentSupport = (doc.XY_Plane, [""])
sketch7.MapMode = "FlatFace"
sketch7.AttachmentOffset = App.Placement(App.Vector(0, 0, 5), App.Rotation())
sketch7.addGeometry(Part.LineSegment(App.Vector(35, 19, 0), App.Vector(35, -19, 0)), False)
sketch7.addGeometry(Part.LineSegment(App.Vector(35, -19, 0), App.Vector(46, 0, 0)), False)
sketch7.addGeometry(Part.LineSegment(App.Vector(46, 0, 0), App.Vector(35, 19, 0)), False)
sketch7.addGeometry(Part.LineSegment(App.Vector(54, 0, 0), App.Vector(65, -19, 0)), False)
sketch7.addGeometry(Part.LineSegment(App.Vector(65, -19, 0), App.Vector(65, 19, 0)), False)
sketch7.addGeometry(Part.LineSegment(App.Vector(65, 19, 0), App.Vector(54, 0, 0)), False)
sketch7.addGeometry(Part.LineSegment(App.Vector(41, 19, 0), App.Vector(50, 4, 0)), False)
sketch7.addGeometry(Part.LineSegment(App.Vector(50, 4, 0), App.Vector(59, 19, 0)), False)
sketch7.addGeometry(Part.LineSegment(App.Vector(59, 19, 0), App.Vector(41, 19, 0)), False)
sketch7.addGeometry(Part.LineSegment(App.Vector(59, -19, 0), App.Vector(50, -4, 0)), False)
sketch7.addGeometry(Part.LineSegment(App.Vector(50, -4, 0), App.Vector(41, -19, 0)), False)
sketch7.addGeometry(Part.LineSegment(App.Vector(41, -19, 0), App.Vector(59, -19, 0)), False)
sketch7.addConstraint(Sketcher.Constraint("Coincident", 0, 2, 1, 1))
sketch7.addConstraint(Sketcher.Constraint("Coincident", 1, 2, 2, 1))
sketch7.addConstraint(Sketcher.Constraint("Coincident", 2, 2, 0, 1))
sketch7.addConstraint(Sketcher.Constraint("Coincident", 3, 2, 4, 1))
sketch7.addConstraint(Sketcher.Constraint("Coincident", 4, 2, 5, 1))
sketch7.addConstraint(Sketcher.Constraint("Coincident", 5, 2, 3, 1))
sketch7.addConstraint(Sketcher.Constraint("Coincident", 6, 2, 7, 1))
sketch7.addConstraint(Sketcher.Constraint("Coincident", 7, 2, 8, 1))
sketch7.addConstraint(Sketcher.Constraint("Coincident", 8, 2, 6, 1))
sketch7.addConstraint(Sketcher.Constraint("Coincident", 9, 2, 10, 1))
sketch7.addConstraint(Sketcher.Constraint("Coincident", 10, 2, 11, 1))
sketch7.addConstraint(Sketcher.Constraint("Coincident", 11, 2, 9, 1))
sketch7.addConstraint(Sketcher.Constraint("Vertical", 0))
sketch7.addConstraint(Sketcher.Constraint("Vertical", 4))
sketch7.addConstraint(Sketcher.Constraint("Horizontal", 8))
sketch7.addConstraint(Sketcher.Constraint("Horizontal", 11))
sketch7.addConstraint(Sketcher.Constraint("Symmetric", 6, 2, 9, 2, -1))
sketch7.addConstraint(Sketcher.Constraint("Symmetric", 8, 2, 10, 2, -1))
sketch7.addConstraint(Sketcher.Constraint("PointOnObject", 1, 2, -1))
sketch7.addConstraint(Sketcher.Constraint("PointOnObject", 5, 2, -1))
sketch7.addConstraint(Sketcher.Constraint("Parallel", 2, 3))
sketch7.addConstraint(Sketcher.Constraint("Parallel", 1, 5))
sketch7.addConstraint(Sketcher.Constraint("Parallel", 3, 6))
sketch7.addConstraint(Sketcher.Constraint("Parallel", 5, 7))
sketch7.addConstraint(Sketcher.Constraint("Parallel", 6, 9))
sketch7.addConstraint(Sketcher.Constraint("Parallel", 7, 10))
sketch7.addConstraint(Sketcher.Constraint("Horizontal", 0, 2, 3, 2))
sketch7.addConstraint(Sketcher.Constraint("Horizontal", 4, 2, 7, 2))
sketch7.addConstraint(Sketcher.Constraint("DistanceX", 8, 2, 8, 1, Q("18 mm")))
sketch7.addConstraint(Sketcher.Constraint("DistanceY", 0, 2, 0, 1, Q("38 mm")))
sketch7.addConstraint(Sketcher.Constraint("DistanceX", -1, 1, 0, 2, Q("35 mm")))
sketch7.addConstraint(Sketcher.Constraint("DistanceX", -1, 1, 3, 2, Q("65 mm")))
sketch7.addConstraint(Sketcher.Constraint("DistanceX", -1, 1, 6, 2, Q("50 mm")))
sketch7.addConstraint(Sketcher.Constraint("DistanceY", -1, 1, 6, 2, Q("4 mm")))
pocket5 = doc.addObject("PartDesign::Pocket", "Pocket004")
body.addObject(pocket5)
pocket5.Profile = sketch7
pocket5.Length = 10
doc.recompute()

fillet4 = doc.addObject("PartDesign::Fillet", "Fillet003")
body.addObject(fillet4)
fillet4.Base = (pocket5, edges_at(pocket5, [
    (41, 19, 2.5),
    (59, 19, 2.5),
    (50, 4, 2.5),
    (65, 19, 2.5),
    (65, -19, 2.5),
    (53.6, 0, 2.5),
    (41, -19, 2.5),
    (50, -4, 2.5),
    (59, -19, 2.5),
    (35, 19, 2.5),
    (46.4, 0, 2.5),
    (35, -19, 2.5),
]))
fillet4.Radius = 1

# Sketch on XY plane
sketch8 = doc.addObject("Sketcher::SketchObject", "Sketch007")
body.addObject(sketch8)
sketch8.AttachmentSupport = (doc.XY_Plane, [""])
sketch8.MapMode = "FlatFace"
sketch8.addGeometry(Part.Circle(App.Vector(0, 24.5, 0), App.Vector(0, 0, 1), 2.2), False)
sketch8.addGeometry(Part.Circle(App.Vector(-21.2, 12.2, 0), App.Vector(0, 0, 1), 2.2), False)
sketch8.addGeometry(Part.Circle(App.Vector(-21.2, -12.2, 0), App.Vector(0, 0, 1), 2.2), False)
sketch8.addGeometry(Part.Circle(App.Vector(0, -24.5, 0), App.Vector(0, 0, 1), 2.2), False)
sketch8.addGeometry(Part.Circle(App.Vector(21.2, -12.2, 0), App.Vector(0, 0, 1), 2.2), False)
sketch8.addGeometry(Part.Circle(App.Vector(21.2, 12.2, 0), App.Vector(0, 0, 1), 2.2), False)
sketch8.addConstraint(Sketcher.Constraint("Equal", 0, 1))
sketch8.addConstraint(Sketcher.Constraint("Equal", 1, 2))
sketch8.addConstraint(Sketcher.Constraint("Equal", 2, 3))
sketch8.addConstraint(Sketcher.Constraint("Equal", 3, 4))
sketch8.addConstraint(Sketcher.Constraint("Equal", 4, 5))
sketch8.addConstraint(Sketcher.Constraint("Symmetric", 0, 3, 3, 3, -1, 1))
sketch8.addConstraint(Sketcher.Constraint("Symmetric", 1, 3, 4, 3, -1, 1))
sketch8.addConstraint(Sketcher.Constraint("Symmetric", 2, 3, 5, 3, -1, 1))
sketch8.addConstraint(Sketcher.Constraint("Symmetric", 2, 3, 4, 3, -2))
sketch8.addConstraint(Sketcher.Constraint("PointOnObject", 0, 3, -2))
sketch8.addConstraint(Sketcher.Constraint("Diameter", 0, Q("4.5 mm")))
sketch8.addConstraint(Sketcher.Constraint("DistanceY", 3, 3, 0, 3, Q("49 mm")))
sketch8.addConstraint(Sketcher.Constraint("DistanceY", 2, 3, 1, 3, Q("24.5 mm")))
sketch8.addConstraint(Sketcher.Constraint("DistanceX", 1, 3, -1, 1, Q("21.217622 mm")))
pocket6 = doc.addObject("PartDesign::Pocket", "Pocket005")
body.addObject(pocket6)
pocket6.Profile = sketch8
pocket6.Length = 2.5
pocket6.Reversed = True

# Sketch on XY plane
sketch9 = doc.addObject("Sketcher::SketchObject", "Sketch008")
body.addObject(sketch9)
sketch9.AttachmentSupport = (doc.XY_Plane, [""])
sketch9.MapMode = "FlatFace"
sketch9.addGeometry(Part.LineSegment(App.Vector(-16, -85, 0), App.Vector(-80, -40, 0)), False)
sketch9.addGeometry(Part.LineSegment(App.Vector(-80, -40, 0), App.Vector(180, -40, 0)), False)
sketch9.addGeometry(Part.LineSegment(App.Vector(180, -40, 0), App.Vector(116, -85, 0)), False)
sketch9.addGeometry(Part.LineSegment(App.Vector(116, -85, 0), App.Vector(-16, -85, 0)), False)
sketch9.addConstraint(Sketcher.Constraint("Coincident", 0, 2, 1, 1))
sketch9.addConstraint(Sketcher.Constraint("Coincident", 1, 2, 2, 1))
sketch9.addConstraint(Sketcher.Constraint("Coincident", 2, 2, 3, 1))
sketch9.addConstraint(Sketcher.Constraint("Coincident", 3, 2, 0, 1))
sketch9.addConstraint(Sketcher.Constraint("Horizontal", 1))
sketch9.addConstraint(Sketcher.Constraint("Horizontal", 3))
sketch9.addConstraint(Sketcher.Constraint("Equal", 0, 2))
sketch9.addConstraint(Sketcher.Constraint("DistanceX", 1, 1, 1, 2, Q("260 mm")))
sketch9.addConstraint(Sketcher.Constraint("Angle", 0, Q("145 deg")))
sketch9.addConstraint(Sketcher.Constraint("DistanceX", 0, 2, -1, 1, Q("80 mm")))
sketch9.addConstraint(Sketcher.Constraint("DistanceY", 0, 2, -1, 1, Q("40 mm")))
sketch9.addConstraint(Sketcher.Constraint("DistanceY", 2, 2, -1, 1, Q("85 mm")))
pad3 = doc.addObject("PartDesign::Pad", "Pad002")
body.addObject(pad3)
pad3.Profile = sketch9
pad3.Length = 5
doc.recompute()

chamfer = doc.addObject("PartDesign::Chamfer", "Chamfer")
body.addObject(chamfer)
chamfer.Base = (pad3, edges_at(pad3, [(180, -40, 2.5)]))
chamfer.ChamferType = "Two distances"
chamfer.Size = 20
chamfer.Size2 = 14.360301
chamfer.FlipDirection = True

# Sketch on XY plane
sketch10 = doc.addObject("Sketcher::SketchObject", "Sketch009")
body.addObject(sketch10)
sketch10.AttachmentSupport = (doc.XY_Plane, [""])
sketch10.MapMode = "FlatFace"
sketch10.addGeometry(Part.Circle(App.Vector(95, -82, 0), App.Vector(0, 0, 1), 1.6), False)
sketch10.addGeometry(Part.Circle(App.Vector(75, -82, 0), App.Vector(0, 0, 1), 1.6), False)
sketch10.addGeometry(Part.Circle(App.Vector(25, -82, 0), App.Vector(0, 0, 1), 1.6), False)
sketch10.addGeometry(Part.Circle(App.Vector(5, -82, 0), App.Vector(0, 0, 1), 1.6), False)
sketch10.addConstraint(Sketcher.Constraint("Equal", 0, 1))
sketch10.addConstraint(Sketcher.Constraint("Equal", 1, 2))
sketch10.addConstraint(Sketcher.Constraint("Equal", 2, 3))
sketch10.addConstraint(Sketcher.Constraint("Horizontal", 0, 3, 1, 3))
sketch10.addConstraint(Sketcher.Constraint("Horizontal", 1, 3, 2, 3))
sketch10.addConstraint(Sketcher.Constraint("Horizontal", 2, 3, 3, 3))
sketch10.addConstraint(Sketcher.Constraint("Diameter", 0, Q("3.1 mm")))
sketch10.addConstraint(Sketcher.Constraint("DistanceX", -1, 1, 0, 3, Q("95 mm")))
sketch10.addConstraint(Sketcher.Constraint("DistanceY", 0, 3, -1, 1, Q("82 mm")))
sketch10.addConstraint(Sketcher.Constraint("DistanceX", -1, 1, 1, 3, Q("75 mm")))
sketch10.addConstraint(Sketcher.Constraint("DistanceX", -1, 1, 2, 3, Q("25 mm")))
sketch10.addConstraint(Sketcher.Constraint("DistanceX", -1, 1, 3, 3, Q("5 mm")))
pocket7 = doc.addObject("PartDesign::Pocket", "Pocket006")
body.addObject(pocket7)
pocket7.Profile = sketch10
pocket7.Length = 10.5
pocket7.Reversed = True

doc.recompute()
